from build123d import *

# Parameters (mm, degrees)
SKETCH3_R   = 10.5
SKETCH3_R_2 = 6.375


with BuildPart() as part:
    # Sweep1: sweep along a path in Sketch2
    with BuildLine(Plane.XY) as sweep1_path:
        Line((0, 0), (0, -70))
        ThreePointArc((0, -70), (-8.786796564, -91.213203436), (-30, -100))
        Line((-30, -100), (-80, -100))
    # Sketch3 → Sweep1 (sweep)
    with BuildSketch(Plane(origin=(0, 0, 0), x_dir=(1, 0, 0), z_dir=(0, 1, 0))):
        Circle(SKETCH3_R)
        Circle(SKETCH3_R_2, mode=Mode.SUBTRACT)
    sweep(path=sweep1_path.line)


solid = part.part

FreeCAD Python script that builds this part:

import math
import FreeCAD as App
import Part
import Sketcher
from FreeCAD import Vector
Q = App.Units.Quantity

doc = App.newDocument("Part")
body = doc.addObject("PartDesign::Body", "Body")

# Sketch on XZ plane
sketch1 = body.newObject("Sketcher::SketchObject", "Sketch")
sketch1.AttachmentSupport = (doc.getObject("XZ_Plane"), [""])
sketch1.MapMode = "FlatFace"
sketch1.addGeometry(Part.Circle(Vector(0, 0, 0), Vector(0, 0, 1), 10.5), False)
sketch1.addGeometry(Part.Circle(Vector(0, 0, 0), Vector(0, 0, 1), 6.375), False)
sketch1.addConstraint(Sketcher.Constraint("Coincident", 0, 3, -1, 1))
sketch1.addConstraint(Sketcher.Constraint("Coincident", 1, 3, -1, 1))
sketch1.addConstraint(Sketcher.Constraint("Diameter", 0, Q("21 mm")))
sketch1.addConstraint(Sketcher.Constraint("Diameter", 1, Q("12.75 mm")))

# Sketch on XY plane
sketch2 = body.newObject("Sketcher::SketchObject", "Sketch001")
sketch2.AttachmentSupport = (doc.getObject("XY_Plane"), [""])
sketch2.MapMode = "FlatFace"
sketch2.addGeometry(Part.LineSegment(Vector(0, 0, 0), Vector(0, -70, 0)), False)
sketch2.addGeometry(Part.ArcOfCircle(Part.Circle(Vector(-30, -70, 0), Vector(0, 0, 1), 30), math.radians(-90), math.radians(0)), False)
sketch2.addGeometry(Part.LineSegment(Vector(-30, -100, 0), Vector(-80, -100, 0)), False)
sketch2.addConstraint(Sketcher.Constraint("Tangent", 0, 2, 1, 2))
sketch2.addConstraint(Sketcher.Constraint("Tangent", 1, 1, 2, 1))
sketch2.addConstraint(Sketcher.Constraint("Vertical", 0))
sketch2.addConstraint(Sketcher.Constraint("Horizontal", 2))
sketch2.addConstraint(Sketcher.Constraint("Coincident", 0, 1, -1, 1))
sketch2.addConstraint(Sketcher.Constraint("Radius", 1, Q("30 mm")))
sketch2.addConstraint(Sketcher.Constraint("DistanceX", 2, 2, 2, 1, Q("50 mm")))
sketch2.addConstraint(Sketcher.Constraint("DistanceY", 0, 2, 0, 1, Q("70 mm")))
doc.recompute()

additivepipe = body.newObject("PartDesign::AdditivePipe", "AdditivePipe")
additivepipe.Profile = sketch1
additivepipe.Spine = (sketch2, ["Edge1", "Edge2", "Edge3"])

doc.recompute()
